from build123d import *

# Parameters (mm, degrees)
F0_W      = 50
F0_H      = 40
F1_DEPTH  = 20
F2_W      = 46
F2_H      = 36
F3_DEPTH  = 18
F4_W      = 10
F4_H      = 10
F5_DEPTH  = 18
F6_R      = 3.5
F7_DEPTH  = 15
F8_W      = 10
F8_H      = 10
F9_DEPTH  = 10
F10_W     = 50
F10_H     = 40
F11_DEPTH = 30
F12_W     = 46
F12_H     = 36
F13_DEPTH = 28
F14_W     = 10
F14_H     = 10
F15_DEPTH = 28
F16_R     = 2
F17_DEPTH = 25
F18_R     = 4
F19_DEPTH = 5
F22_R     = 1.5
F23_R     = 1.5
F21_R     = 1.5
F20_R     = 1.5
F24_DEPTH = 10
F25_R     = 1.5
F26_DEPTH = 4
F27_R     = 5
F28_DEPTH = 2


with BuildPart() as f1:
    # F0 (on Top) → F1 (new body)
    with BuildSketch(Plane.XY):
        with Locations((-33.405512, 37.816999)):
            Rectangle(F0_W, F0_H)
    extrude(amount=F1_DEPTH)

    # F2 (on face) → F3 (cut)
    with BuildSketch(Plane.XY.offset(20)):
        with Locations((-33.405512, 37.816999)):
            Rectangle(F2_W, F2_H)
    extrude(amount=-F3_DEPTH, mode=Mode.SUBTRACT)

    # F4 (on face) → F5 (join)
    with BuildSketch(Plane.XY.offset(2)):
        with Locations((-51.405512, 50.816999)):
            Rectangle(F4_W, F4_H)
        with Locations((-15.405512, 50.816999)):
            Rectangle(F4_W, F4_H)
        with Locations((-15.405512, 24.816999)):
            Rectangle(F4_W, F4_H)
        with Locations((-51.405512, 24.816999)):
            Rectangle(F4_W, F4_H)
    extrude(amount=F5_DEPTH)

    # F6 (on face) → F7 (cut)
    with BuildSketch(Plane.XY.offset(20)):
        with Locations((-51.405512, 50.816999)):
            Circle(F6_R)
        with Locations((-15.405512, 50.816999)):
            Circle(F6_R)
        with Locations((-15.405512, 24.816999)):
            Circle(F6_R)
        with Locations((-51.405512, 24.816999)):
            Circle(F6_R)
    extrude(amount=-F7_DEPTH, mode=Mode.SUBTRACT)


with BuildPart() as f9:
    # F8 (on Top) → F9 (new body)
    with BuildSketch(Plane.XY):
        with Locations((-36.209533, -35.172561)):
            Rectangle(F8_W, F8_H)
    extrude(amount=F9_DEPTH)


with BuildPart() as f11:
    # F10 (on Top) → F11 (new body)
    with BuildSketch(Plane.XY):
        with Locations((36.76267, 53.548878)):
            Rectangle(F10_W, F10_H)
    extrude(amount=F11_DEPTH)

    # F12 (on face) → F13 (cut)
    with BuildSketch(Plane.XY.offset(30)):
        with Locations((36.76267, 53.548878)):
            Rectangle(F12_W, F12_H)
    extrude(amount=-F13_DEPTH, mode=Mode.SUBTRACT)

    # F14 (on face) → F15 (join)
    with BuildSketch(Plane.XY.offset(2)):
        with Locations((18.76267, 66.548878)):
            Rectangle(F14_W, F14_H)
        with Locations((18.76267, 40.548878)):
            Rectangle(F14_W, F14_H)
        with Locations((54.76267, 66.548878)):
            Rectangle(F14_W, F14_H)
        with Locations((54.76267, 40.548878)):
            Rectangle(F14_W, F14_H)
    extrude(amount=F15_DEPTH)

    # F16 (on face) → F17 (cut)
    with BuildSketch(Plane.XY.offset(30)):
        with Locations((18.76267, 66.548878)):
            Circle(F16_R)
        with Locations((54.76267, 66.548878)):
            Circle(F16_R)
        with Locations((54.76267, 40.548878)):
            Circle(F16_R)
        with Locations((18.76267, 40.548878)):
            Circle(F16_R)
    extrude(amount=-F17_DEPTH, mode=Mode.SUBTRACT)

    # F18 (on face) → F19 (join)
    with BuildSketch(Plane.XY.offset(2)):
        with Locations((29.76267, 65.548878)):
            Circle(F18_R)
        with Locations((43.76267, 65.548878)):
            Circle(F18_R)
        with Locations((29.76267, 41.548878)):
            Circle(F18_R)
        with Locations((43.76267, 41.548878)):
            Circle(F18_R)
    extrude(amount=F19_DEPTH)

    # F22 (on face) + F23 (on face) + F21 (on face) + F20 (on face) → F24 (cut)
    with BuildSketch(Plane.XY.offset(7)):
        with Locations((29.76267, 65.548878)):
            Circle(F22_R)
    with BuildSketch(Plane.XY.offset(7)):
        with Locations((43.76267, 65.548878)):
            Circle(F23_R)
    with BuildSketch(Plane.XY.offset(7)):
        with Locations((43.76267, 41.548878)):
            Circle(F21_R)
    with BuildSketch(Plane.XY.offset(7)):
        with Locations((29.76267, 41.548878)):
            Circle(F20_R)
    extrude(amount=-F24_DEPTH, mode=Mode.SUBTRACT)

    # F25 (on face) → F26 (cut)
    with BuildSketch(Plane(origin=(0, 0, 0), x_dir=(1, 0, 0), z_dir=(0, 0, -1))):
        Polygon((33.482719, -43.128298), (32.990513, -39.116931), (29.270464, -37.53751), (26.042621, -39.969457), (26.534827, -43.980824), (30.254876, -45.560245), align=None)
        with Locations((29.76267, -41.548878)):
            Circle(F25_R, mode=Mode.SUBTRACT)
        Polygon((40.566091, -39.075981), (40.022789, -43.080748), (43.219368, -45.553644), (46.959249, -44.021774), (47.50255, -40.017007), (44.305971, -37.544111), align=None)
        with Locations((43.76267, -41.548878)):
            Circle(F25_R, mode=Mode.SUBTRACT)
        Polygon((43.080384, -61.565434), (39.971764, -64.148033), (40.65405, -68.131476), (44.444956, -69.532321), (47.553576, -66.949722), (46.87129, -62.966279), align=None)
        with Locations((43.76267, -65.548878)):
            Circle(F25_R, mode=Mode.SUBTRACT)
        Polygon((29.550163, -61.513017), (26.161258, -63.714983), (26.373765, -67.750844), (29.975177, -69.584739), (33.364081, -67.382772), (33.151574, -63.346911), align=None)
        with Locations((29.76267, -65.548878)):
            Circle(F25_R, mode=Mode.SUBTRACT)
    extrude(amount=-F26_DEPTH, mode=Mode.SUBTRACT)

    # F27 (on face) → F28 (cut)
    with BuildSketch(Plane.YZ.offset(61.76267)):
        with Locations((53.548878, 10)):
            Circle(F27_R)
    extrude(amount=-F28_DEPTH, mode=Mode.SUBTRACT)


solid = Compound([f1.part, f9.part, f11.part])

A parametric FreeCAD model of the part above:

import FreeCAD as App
import Part
import Sketcher
from FreeCAD import Vector
Q = App.Units.Quantity

doc = App.newDocument("Part")
body = doc.addObject("PartDesign::Body", "Body")

sketch1 = body.newObject("Sketcher::SketchObject", "Sketch")
sketch1.AttachmentSupport = (doc.getObject("XY_Plane"), [""])
sketch1.MapMode = "FlatFace"
sketch1.addGeometry([
    Part.LineSegment(Vector(-58, 58, 0), Vector(-58, 18, 0)),
    Part.LineSegment(Vector(-58, 18, 0), Vector(-8, 18, 0)),
    Part.LineSegment(Vector(-8, 18, 0), Vector(-8, 58, 0)),
    Part.LineSegment(Vector(-8, 58, 0), Vector(-58, 58, 0)),
], False)
sketch1.addConstraint([
    Sketcher.Constraint("Coincident", 0, 2, 1, 1),
    Sketcher.Constraint("Coincident", 1, 2, 2, 1),
    Sketcher.Constraint("Coincident", 2, 2, 3, 1),
    Sketcher.Constraint("Coincident", 3, 2, 0, 1),
    Sketcher.Constraint("Vertical", 0),
    Sketcher.Constraint("Horizontal", 1),
    Sketcher.Constraint("Vertical", 2),
    Sketcher.Constraint("Horizontal", 3),
    Sketcher.Constraint("DistanceX", 1, 1, 1, 2, Q("50 mm")),
    Sketcher.Constraint("DistanceY", 0, 2, 0, 1, Q("40 mm")),
    Sketcher.Constraint("DistanceY", -1, 1, 0, 2, Q("17.816999 mm")),
    Sketcher.Constraint("DistanceX", 0, 2, -1, 1, Q("58.405512 mm")),
])
pad1 = body.newObject("PartDesign::Pad", "Pad")
pad1.Profile = sketch1
pad1.Length = 20

sketch2 = body.newObject("Sketcher::SketchObject", "Sketch001")
sketch2.AttachmentSupport = (doc.getObject("XY_Plane"), [""])
sketch2.MapMode = "FlatFace"
sketch2.AttachmentOffset = App.Placement(Vector(0, 0, 20), App.Rotation())
sketch2.addGeometry([
    Part.LineSegment(Vector(-56, 56, 0), Vector(-56, 20, 0)),
    Part.LineSegment(Vector(-56, 20, 0), Vector(-10, 20, 0)),
    Part.LineSegment(Vector(-10, 20, 0), Vector(-10, 56, 0)),
    Part.LineSegment(Vector(-10, 56, 0), Vector(-56, 56, 0)),
], False)
sketch2.addConstraint([
    Sketcher.Constraint("Coincident", 0, 2, 1, 1),
    Sketcher.Constraint("Coincident", 1, 2, 2, 1),
    Sketcher.Constraint("Coincident", 2, 2, 3, 1),
    Sketcher.Constraint("Coincident", 3, 2, 0, 1),
    Sketcher.Constraint("Vertical", 0),
    Sketcher.Constraint("Horizontal", 1),
    Sketcher.Constraint("Vertical", 2),
    Sketcher.Constraint("Horizontal", 3),
    Sketcher.Constraint("DistanceX", 1, 1, 1, 2, Q("46 mm")),
    Sketcher.Constraint("DistanceY", 0, 2, 0, 1, Q("36 mm")),
    Sketcher.Constraint("DistanceY", -1, 1, 0, 2, Q("19.816999 mm")),
    Sketcher.Constraint("DistanceX", 0, 2, -1, 1, Q("56.405512 mm")),
])
pocket1 = body.newObject("PartDesign::Pocket", "Pocket")
pocket1.Profile = sketch2
pocket1.Length = 18

sketch3 = body.newObject("Sketcher::SketchObject", "Sketch002")
sketch3.AttachmentSupport = (doc.getObject("XY_Plane"), [""])
sketch3.MapMode = "FlatFace"
sketch3.AttachmentOffset = App.Placement(Vector(0, 0, 2), App.Rotation())
sketch3.addGeometry([
    Part.LineSegment(Vector(-56, 56, 0), Vector(-56, 46, 0)),
    Part.LineSegment(Vector(-56, 46, 0), Vector(-46, 46, 0)),
    Part.LineSegment(Vector(-46, 46, 0), Vector(-46, 56, 0)),
    Part.LineSegment(Vector(-46, 56, 0), Vector(-56, 56, 0)),
    Part.LineSegment(Vector(-20, 56, 0), Vector(-20, 46, 0)),
    Part.LineSegment(Vector(-20, 46, 0), Vector(-10, 46, 0)),
    Part.LineSegment(Vector(-10, 46, 0), Vector(-10, 56, 0)),
    Part.LineSegment(Vector(-10, 56, 0), Vector(-20, 56, 0)),
    Part.LineSegment(Vector(-20, 30, 0), Vector(-20, 20, 0)),
    Part.LineSegment(Vector(-20, 20, 0), Vector(-10, 20, 0)),
    Part.LineSegment(Vector(-10, 20, 0), Vector(-10, 30, 0)),
    Part.LineSegment(Vector(-10, 30, 0), Vector(-20, 30, 0)),
    Part.LineSegment(Vector(-56, 30, 0), Vector(-56, 20, 0)),
    Part.LineSegment(Vector(-56, 20, 0), Vector(-46, 20, 0)),
    Part.LineSegment(Vector(-46, 20, 0), Vector(-46, 30, 0)),
    Part.LineSegment(Vector(-46, 30, 0), Vector(-56, 30, 0)),
], False)
sketch3.addConstraint([
    Sketcher.Constraint("Coincident", 0, 2, 1, 1),
    Sketcher.Constraint("Coincident", 1, 2, 2, 1),
    Sketcher.Constraint("Coincident", 2, 2, 3, 1),
    Sketcher.Constraint("Coincident", 3, 2, 0, 1),
    Sketcher.Constraint("Coincident", 4, 2, 5, 1),
    Sketcher.Constraint("Coincident", 5, 2, 6, 1),
    Sketcher.Constraint("Coincident", 6, 2, 7, 1),
    Sketcher.Constraint("Coincident", 7, 2, 4, 1),
    Sketcher.Constraint("Coincident", 8, 2, 9, 1),
    Sketcher.Constraint("Coincident", 9, 2, 10, 1),
    Sketcher.Constraint("Coincident", 10, 2, 11, 1),
    Sketcher.Constraint("Coincident", 11, 2, 8, 1),
    Sketcher.Constraint("Coincident", 12, 2, 13, 1),
    Sketcher.Constraint("Coincident", 13, 2, 14, 1),
    Sketcher.Constraint("Coincident", 14, 2, 15, 1),
    Sketcher.Constraint("Coincident", 15, 2, 12, 1),
    Sketcher.Constraint("Vertical", 0),
    Sketcher.Constraint("Horizontal", 1),
    Sketcher.Constraint("Vertical", 2),
    Sketcher.Constraint("Horizontal", 3),
    Sketcher.Constraint("Vertical", 4),
    Sketcher.Constraint("Horizontal", 5),
    Sketcher.Constraint("Vertical", 6),
    Sketcher.Constraint("Horizontal", 7),
    Sketcher.Constraint("Vertical", 8),
    Sketcher.Constraint("Horizontal", 9),
    Sketcher.Constraint("Vertical", 10),
    Sketcher.Constraint("Horizontal", 11),
    Sketcher.Constraint("Vertical", 12),
    Sketcher.Constraint("Horizontal", 13),
    Sketcher.Constraint("Vertical", 14),
    Sketcher.Constraint("Horizontal", 15),
    Sketcher.Constraint("Horizontal", 1, 2, 4, 2),
    Sketcher.Constraint("Horizontal", 3, 2, 6, 2),
    Sketcher.Constraint("Horizontal", 9, 2, 12, 2),
    Sketcher.Constraint("Horizontal", 11, 2, 14, 2),
    Sketcher.Constraint("Vertical", 7, 2, 8, 2),
    Sketcher.Constraint("Vertical", 6, 2, 9, 2),
    Sketcher.Constraint("Vertical", 3, 2, 12, 2),
    Sketcher.Constraint("Vertical", 2, 2, 13, 2),
    Sketcher.Constraint("Equal", 3, 5),
    Sketcher.Constraint("Equal", 15, 0),
    Sketcher.Constraint("Equal", 6, 8),
    Sketcher.Constraint("DistanceX", 1, 1, 1, 2, Q("10 mm")),
    Sketcher.Constraint("DistanceX", 1, 2, 4, 2, Q("26 mm")),
    Sketcher.Constraint("DistanceY", 8, 2, 4, 2, Q("26 mm")),
    Sketcher.Constraint("DistanceY", -1, 1, 0, 2, Q("45.816999 mm")),
    Sketcher.Constraint("DistanceX", 0, 2, -1, 1, Q("56.405512 mm")),
])
pad2 = body.newObject("PartDesign::Pad", "Pad001")
pad2.Profile = sketch3
pad2.Length = 18

sketch4 = body.newObject("Sketcher::SketchObject", "Sketch003")
sketch4.AttachmentSupport = (doc.getObject("XY_Plane"), [""])
sketch4.MapMode = "FlatFace"
sketch4.AttachmentOffset = App.Placement(Vector(0, 0, 20), App.Rotation())
sketch4.addGeometry([
    Part.Circle(Vector(-51.4, 50.8, 0), Vector(0, 0, 1), 3.5),
    Part.Circle(Vector(-15.4, 50.8, 0), Vector(0, 0, 1), 3.5),
    Part.Circle(Vector(-15.4, 24.8, 0), Vector(0, 0, 1), 3.5),
    Part.Circle(Vector(-51.4, 24.8, 0), Vector(0, 0, 1), 3.5),
], False)
sketch4.addConstraint([
    Sketcher.Constraint("Equal", 0, 1),
    Sketcher.Constraint("Equal", 1, 2),
    Sketcher.Constraint("Equal", 2, 3),
    Sketcher.Constraint("Horizontal", 0, 3, 1, 3),
    Sketcher.Constraint("Horizontal", 2, 3, 3, 3),
    Sketcher.Constraint("Vertical", 1, 3, 2, 3),
    Sketcher.Constraint("Vertical", 0, 3, 3, 3),
    Sketcher.Constraint("Diameter", 0, Q("7 mm")),
    Sketcher.Constraint("DistanceX", 0, 3, 1, 3, Q("36 mm")),
    Sketcher.Constraint("DistanceY", 2, 3, 1, 3, Q("26 mm")),
    Sketcher.Constraint("DistanceY", -1, 1, 0, 3, Q("50.816999 mm")),
    Sketcher.Constraint("DistanceX", 0, 3, -1, 1, Q("51.405512 mm")),
])
pocket2 = body.newObject("PartDesign::Pocket", "Pocket001")
pocket2.Profile = sketch4
pocket2.Length = 15
body2 = doc.addObject("PartDesign::Body", "Body001")

sketch5 = body2.newObject("Sketcher::SketchObject", "Sketch004")
sketch5.AttachmentSupport = (doc.getObject("XY_Plane001"), [""])
sketch5.MapMode = "FlatFace"
sketch5.addGeometry([
    Part.LineSegment(Vector(-41, -30, 0), Vector(-41, -40, 0)),
    Part.LineSegment(Vector(-41, -40, 0), Vector(-31, -40, 0)),
    Part.LineSegment(Vector(-31, -40, 0), Vector(-31, -30, 0)),
    Part.LineSegment(Vector(-31, -30, 0), Vector(-41, -30, 0)),
], False)
sketch5.addConstraint([
    Sketcher.Constraint("Coincident", 0, 2, 1, 1),
    Sketcher.Constraint("Coincident", 1, 2, 2, 1),
    Sketcher.Constraint("Coincident", 2, 2, 3, 1),
    Sketcher.Constraint("Coincident", 3, 2, 0, 1),
    Sketcher.Constraint("Vertical", 0),
    Sketcher.Constraint("Horizontal", 1),
    Sketcher.Constraint("Vertical", 2),
    Sketcher.Constraint("Horizontal", 3),
    Sketcher.Constraint("Equal", 3, 0),
    Sketcher.Constraint("DistanceX", 1, 1, 1, 2, Q("10 mm")),
    Sketcher.Constraint("DistanceY", 0, 2, -1, 1, Q("40.172561 mm")),
    Sketcher.Constraint("DistanceX", 0, 2, -1, 1, Q("41.209533 mm")),
])
pad3 = body2.newObject("PartDesign::Pad", "Pad002")
pad3.Profile = sketch5
pad3.Length = 10
body3 = doc.addObject("PartDesign::Body", "Body002")

sketch6 = body3.newObject("Sketcher::SketchObject", "Sketch005")
sketch6.AttachmentSupport = (doc.getObject("XY_Plane002"), [""])
sketch6.MapMode = "FlatFace"
sketch6.addGeometry([
    Part.LineSegment(Vector(12, 74, 0), Vector(12, 34, 0)),
    Part.LineSegment(Vector(12, 34, 0), Vector(62, 34, 0)),
    Part.LineSegment(Vector(62, 34, 0), Vector(62, 74, 0)),
    Part.LineSegment(Vector(62, 74, 0), Vector(12, 74, 0)),
], False)
sketch6.addConstraint([
    Sketcher.Constraint("Coincident", 0, 2, 1, 1),
    Sketcher.Constraint("Coincident", 1, 2, 2, 1),
    Sketcher.Constraint("Coincident", 2, 2, 3, 1),
    Sketcher.Constraint("Coincident", 3, 2, 0, 1),
    Sketcher.Constraint("Vertical", 0),
    Sketcher.Constraint("Horizontal", 1),
    Sketcher.Constraint("Vertical", 2),
    Sketcher.Constraint("Horizontal", 3),
    Sketcher.Constraint("DistanceX", 1, 1, 1, 2, Q("50 mm")),
    Sketcher.Constraint("DistanceY", 0, 2, 0, 1, Q("40 mm")),
    Sketcher.Constraint("DistanceX", -1, 1, 0, 2, Q("11.76267 mm")),
    Sketcher.Constraint("DistanceY", -1, 1, 0, 2, Q("33.548878 mm")),
])
pad4 = body3.newObject("PartDesign::Pad", "Pad003")
pad4.Profile = sketch6
pad4.Length = 30

sketch7 = body3.newObject("Sketcher::SketchObject", "Sketch006")
sketch7.AttachmentSupport = (doc.getObject("XY_Plane002"), [""])
sketch7.MapMode = "FlatFace"
sketch7.AttachmentOffset = App.Placement(Vector(0, 0, 30), App.Rotation())
sketch7.addGeometry([
    Part.LineSegment(Vector(14, 72, 0), Vector(14, 36, 0)),
    Part.LineSegment(Vector(14, 36, 0), Vector(60, 36, 0)),
    Part.LineSegment(Vector(60, 36, 0), Vector(60, 72, 0)),
    Part.LineSegment(Vector(60, 72, 0), Vector(14, 72, 0)),
], False)
sketch7.addConstraint([
    Sketcher.Constraint("Coincident", 0, 2, 1, 1),
    Sketcher.Constraint("Coincident", 1, 2, 2, 1),
    Sketcher.Constraint("Coincident", 2, 2, 3, 1),
    Sketcher.Constraint("Coincident", 3, 2, 0, 1),
    Sketcher.Constraint("Vertical", 0),
    Sketcher.Constraint("Horizontal", 1),
    Sketcher.Constraint("Vertical", 2),
    Sketcher.Constraint("Horizontal", 3),
    Sketcher.Constraint("DistanceX", 1, 1, 1, 2, Q("46 mm")),
    Sketcher.Constraint("DistanceY", 0, 2, 0, 1, Q("36 mm")),
    Sketcher.Constraint("DistanceX", -1, 1, 0, 2, Q("13.76267 mm")),
    Sketcher.Constraint("DistanceY", -1, 1, 0, 2, Q("35.548878 mm")),
])
pocket3 = body3.newObject("PartDesign::Pocket", "Pocket002")
pocket3.Profile = sketch7
pocket3.Length = 28

sketch8 = body3.newObject("Sketcher::SketchObject", "Sketch007")
sketch8.AttachmentSupport = (doc.getObject("XY_Plane002"), [""])
sketch8.MapMode = "FlatFace"
sketch8.AttachmentOffset = App.Placement(Vector(0, 0, 2), App.Rotation())
sketch8.addGeometry([
    Part.LineSegment(Vector(14, 72, 0), Vector(14, 62, 0)),
    Part.LineSegment(Vector(14, 62, 0), Vector(24, 62, 0)),
    Part.LineSegment(Vector(24, 62, 0), Vector(24, 72, 0)),
    Part.LineSegment(Vector(24, 72, 0), Vector(14, 72, 0)),
    Part.LineSegment(Vector(14, 46, 0), Vector(14, 36, 0)),
    Part.LineSegment(Vector(14, 36, 0), Vector(24, 36, 0)),
    Part.LineSegment(Vector(24, 36, 0), Vector(24, 46, 0)),
    Part.LineSegment(Vector(24, 46, 0), Vector(14, 46, 0)),
    Part.LineSegment(Vector(50, 72, 0), Vector(50, 62, 0)),
    Part.LineSegment(Vector(50, 62, 0), Vector(60, 62, 0)),
    Part.LineSegment(Vector(60, 62, 0), Vector(60, 72, 0)),
    Part.LineSegment(Vector(60, 72, 0), Vector(50, 72, 0)),
    Part.LineSegment(Vector(50, 46, 0), Vector(50, 36, 0)),
    Part.LineSegment(Vector(50, 36, 0), Vector(60, 36, 0)),
    Part.LineSegment(Vector(60, 36, 0), Vector(60, 46, 0)),
    Part.LineSegment(Vector(60, 46, 0), Vector(50, 46, 0)),
], False)
sketch8.addConstraint([
    Sketcher.Constraint("Coincident", 0, 2, 1, 1),
    Sketcher.Constraint("Coincident", 1, 2, 2, 1),
    Sketcher.Constraint("Coincident", 2, 2, 3, 1),
    Sketcher.Constraint("Coincident", 3, 2, 0, 1),
    Sketcher.Constraint("Coincident", 4, 2, 5, 1),
    Sketcher.Constraint("Coincident", 5, 2, 6, 1),
    Sketcher.Constraint("Coincident", 6, 2, 7, 1),
    Sketcher.Constraint("Coincident", 7, 2, 4, 1),
    Sketcher.Constraint("Coincident", 8, 2, 9, 1),
    Sketcher.Constraint("Coincident", 9, 2, 10, 1),
    Sketcher.Constraint("Coincident", 10, 2, 11, 1),
    Sketcher.Constraint("Coincident", 11, 2, 8, 1),
    Sketcher.Constraint("Coincident", 12, 2, 13, 1),
    Sketcher.Constraint("Coincident", 13, 2, 14, 1),
    Sketcher.Constraint("Coincident", 14, 2, 15, 1),
    Sketcher.Constraint("Coincident", 15, 2, 12, 1),
    Sketcher.Constraint("Vertical", 0),
    Sketcher.Constraint("Horizontal", 1),
    Sketcher.Constraint("Vertical", 2),
    Sketcher.Constraint("Horizontal", 3),
    Sketcher.Constraint("Vertical", 4),
    Sketcher.Constraint("Horizontal", 5),
    Sketcher.Constraint("Vertical", 6),
    Sketcher.Constraint("Horizontal", 7),
    Sketcher.Constraint("Vertical", 8),
    Sketcher.Constraint("Horizontal", 9),
    Sketcher.Constraint("Vertical", 10),
    Sketcher.Constraint("Horizontal", 11),
    Sketcher.Constraint("Vertical", 12),
    Sketcher.Constraint("Horizontal", 13),
    Sketcher.Constraint("Vertical", 14),
    Sketcher.Constraint("Horizontal", 15),
    Sketcher.Constraint("Horizontal", 1, 2, 8, 2),
    Sketcher.Constraint("Horizontal", 3, 2, 10, 2),
    Sketcher.Constraint("Horizontal", 5, 2, 12, 2),
    Sketcher.Constraint("Horizontal", 7, 2, 14, 2),
    Sketcher.Constraint("Vertical", 3, 2, 4, 2),
    Sketcher.Constraint("Vertical", 2, 2, 5, 2),
    Sketcher.Constraint("Vertical", 11, 2, 12, 2),
    Sketcher.Constraint("Vertical", 10, 2, 13, 2),
    Sketcher.Constraint("Equal", 7, 9),
    Sketcher.Constraint("Equal", 15, 0),
    Sketcher.Constraint("Equal", 2, 4),
    Sketcher.Constraint("DistanceX", 1, 1, 1, 2, Q("10 mm")),
    Sketcher.Constraint("DistanceY", 4, 2, 0, 2, Q("26 mm")),
    Sketcher.Constraint("DistanceX", 1, 2, 8, 2, Q("26 mm")),
    Sketcher.Constraint("DistanceX", -1, 1, 0, 2, Q("13.76267 mm")),
    Sketcher.Constraint("DistanceY", -1, 1, 0, 2, Q("61.548878 mm")),
])
pad5 = body3.newObject("PartDesign::Pad", "Pad004")
pad5.Profile = sketch8
pad5.Length = 28

sketch9 = body3.newObject("Sketcher::SketchObject", "Sketch008")
sketch9.AttachmentSupport = (doc.getObject("XY_Plane002"), [""])
sketch9.MapMode = "FlatFace"
sketch9.AttachmentOffset = App.Placement(Vector(0, 0, 30), App.Rotation())
sketch9.addGeometry([
    Part.Circle(Vector(18.8, 66.5, 0), Vector(0, 0, 1), 2),
    Part.Circle(Vector(54.8, 66.5, 0), Vector(0, 0, 1), 2),
    Part.Circle(Vector(54.8, 40.5, 0), Vector(0, 0, 1), 2),
    Part.Circle(Vector(18.8, 40.5, 0), Vector(0, 0, 1), 2),
], False)
sketch9.addConstraint([
    Sketcher.Constraint("Equal", 0, 1),
    Sketcher.Constraint("Equal", 1, 2),
    Sketcher.Constraint("Equal", 2, 3),
    Sketcher.Constraint("Horizontal", 0, 3, 1, 3),
    Sketcher.Constraint("Horizontal", 2, 3, 3, 3),
    Sketcher.Constraint("Vertical", 1, 3, 2, 3),
    Sketcher.Constraint("Vertical", 0, 3, 3, 3),
    Sketcher.Constraint("Diameter", 0, Q("4 mm")),
    Sketcher.Constraint("DistanceX", 0, 3, 1, 3, Q("36 mm")),
    Sketcher.Constraint("DistanceY", 2, 3, 1, 3, Q("26 mm")),
    Sketcher.Constraint("DistanceX", -1, 1, 0, 3, Q("18.76267 mm")),
    Sketcher.Constraint("DistanceY", -1, 1, 0, 3, Q("66.548878 mm")),
])
pocket4 = body3.newObject("PartDesign::Pocket", "Pocket003")
pocket4.Profile = sketch9
pocket4.Length = 25

sketch10 = body3.newObject("Sketcher::SketchObject", "Sketch009")
sketch10.AttachmentSupport = (doc.getObject("XY_Plane002"), [""])
sketch10.MapMode = "FlatFace"
sketch10.AttachmentOffset = App.Placement(Vector(0, 0, 2), App.Rotation())
sketch10.addGeometry([
    Part.Circle(Vector(29.8, 65.5, 0), Vector(0, 0, 1), 4),
    Part.Circle(Vector(43.8, 65.5, 0), Vector(0, 0, 1), 4),
    Part.Circle(Vector(29.8, 41.5, 0), Vector(0, 0, 1), 4),
    Part.Circle(Vector(43.8, 41.5, 0), Vector(0, 0, 1), 4),
], False)
sketch10.addConstraint([
    Sketcher.Constraint("Equal", 0, 1),
    Sketcher.Constraint("Equal", 1, 2),
    Sketcher.Constraint("Equal", 2, 3),
    Sketcher.Constraint("Horizontal", 0, 3, 1, 3),
    Sketcher.Constraint("Horizontal", 2, 3, 3, 3),
    Sketcher.Constraint("Vertical", 0, 3, 2, 3),
    Sketcher.Constraint("Vertical", 1, 3, 3, 3),
    Sketcher.Constraint("Diameter", 0, Q("8 mm")),
    Sketcher.Constraint("DistanceX", 0, 3, 1, 3, Q("14 mm")),
    Sketcher.Constraint("DistanceY", 2, 3, 0, 3, Q("24 mm")),
    Sketcher.Constraint("DistanceX", -1, 1, 0, 3, Q("29.76267 mm")),
    Sketcher.Constraint("DistanceY", -1, 1, 0, 3, Q("65.548878 mm")),
])
pad6 = body3.newObject("PartDesign::Pad", "Pad005")
pad6.Profile = sketch10
pad6.Length = 5

sketch11 = body3.newObject("Sketcher::SketchObject", "Sketch010")
sketch11.AttachmentSupport = (doc.getObject("XY_Plane002"), [""])
sketch11.MapMode = "FlatFace"
sketch11.AttachmentOffset = App.Placement(Vector(0, 0, 7), App.Rotation())
sketch11.addGeometry([
    Part.Circle(Vector(29.8, 65.5, 0), Vector(0, 0, 1), 1.5),
    Part.Circle(Vector(43.8, 65.5, 0), Vector(0, 0, 1), 1.5),
    Part.Circle(Vector(43.8, 41.5, 0), Vector(0, 0, 1), 1.5),
    Part.Circle(Vector(29.8, 41.5, 0), Vector(0, 0, 1), 1.5),
], False)
sketch11.addConstraint([
    Sketcher.Constraint("Equal", 0, 1),
    Sketcher.Constraint("Equal", 1, 2),
    Sketcher.Constraint("Equal", 2, 3),
    Sketcher.Constraint("Horizontal", 0, 3, 1, 3),
    Sketcher.Constraint("Horizontal", 2, 3, 3, 3),
    Sketcher.Constraint("Vertical", 1, 3, 2, 3),
    Sketcher.Constraint("Vertical", 0, 3, 3, 3),
    Sketcher.Constraint("Diameter", 0, Q("3 mm")),
    Sketcher.Constraint("DistanceX", 0, 3, 1, 3, Q("14 mm")),
    Sketcher.Constraint("DistanceY", 2, 3, 1, 3, Q("24 mm")),
    Sketcher.Constraint("DistanceX", -1, 1, 0, 3, Q("29.76267 mm")),
    Sketcher.Constraint("DistanceY", -1, 1, 0, 3, Q("65.548878 mm")),
])
pocket5 = body3.newObject("PartDesign::Pocket", "Pocket004")
pocket5.Profile = sketch11
pocket5.Length = 10

sketch12 = body3.newObject("Sketcher::SketchObject", "Sketch011")
sketch12.AttachmentSupport = (doc.getObject("XY_Plane002"), [""])
sketch12.MapMode = "FlatFace"
sketch12.addGeometry([
    Part.LineSegment(Vector(33.5, 43.1, 0), Vector(33, 39.1, 0)),
    Part.LineSegment(Vector(33, 39.1, 0), Vector(29.3, 37.5, 0)),
    Part.LineSegment(Vector(29.3, 37.5, 0), Vector(26, 40, 0)),
    Part.LineSegment(Vector(26, 40, 0), Vector(26.5, 44, 0)),
    Part.LineSegment(Vector(26.5, 44, 0), Vector(30.3, 45.6, 0)),
    Part.LineSegment(Vector(30.3, 45.6, 0), Vector(33.5, 43.1, 0)),
    Part.Circle(Vector(29.8, 41.5, 0), Vector(0, 0, 1), 1.5),
    Part.LineSegment(Vector(40.6, 39.1, 0), Vector(40, 43.1, 0)),
    Part.LineSegment(Vector(40, 43.1, 0), Vector(43.2, 45.6, 0)),
    Part.LineSegment(Vector(43.2, 45.6, 0), Vector(47, 44, 0)),
    Part.LineSegment(Vector(47, 44, 0), Vector(47.5, 40, 0)),
    Part.LineSegment(Vector(47.5, 40, 0), Vector(44.3, 37.5, 0)),
    Part.LineSegment(Vector(44.3, 37.5, 0), Vector(40.6, 39.1, 0)),
    Part.Circle(Vector(43.8, 41.5, 0), Vector(0, 0, 1), 1.5),
    Part.LineSegment(Vector(43.1, 61.6, 0), Vector(40, 64.1, 0)),
    Part.LineSegment(Vector(40, 64.1, 0), Vector(40.7, 68.1, 0)),
    Part.LineSegment(Vector(40.7, 68.1, 0), Vector(44.4, 69.5, 0)),
    Part.LineSegment(Vector(44.4, 69.5, 0), Vector(47.6, 66.9, 0)),
    Part.LineSegment(Vector(47.6, 66.9, 0), Vector(46.9, 63, 0)),
    Part.LineSegment(Vector(46.9, 63, 0), Vector(43.1, 61.6, 0)),
    Part.Circle(Vector(43.8, 65.5, 0), Vector(0, 0, 1), 1.5),
    Part.LineSegment(Vector(29.6, 61.5, 0), Vector(26.2, 63.7, 0)),
    Part.LineSegment(Vector(26.2, 63.7, 0), Vector(26.4, 67.8, 0)),
    Part.LineSegment(Vector(26.4, 67.8, 0), Vector(30, 69.6, 0)),
    Part.LineSegment(Vector(30, 69.6, 0), Vector(33.4, 67.4, 0)),
    Part.LineSegment(Vector(33.4, 67.4, 0), Vector(33.2, 63.3, 0)),
    Part.LineSegment(Vector(33.2, 63.3, 0), Vector(29.6, 61.5, 0)),
    Part.Circle(Vector(29.8, 65.5, 0), Vector(0, 0, 1), 1.5),
], False)
sketch12.addConstraint([
    Sketcher.Constraint("Coincident", 0, 2, 1, 1),
    Sketcher.Constraint("Coincident", 1, 2, 2, 1),
    Sketcher.Constraint("Coincident", 2, 2, 3, 1),
    Sketcher.Constraint("Coincident", 3, 2, 4, 1),
    Sketcher.Constraint("Coincident", 4, 2, 5, 1),
    Sketcher.Constraint("Coincident", 5, 2, 0, 1),
    Sketcher.Constraint("Coincident", 7, 2, 8, 1),
    Sketcher.Constraint("Coincident", 8, 2, 9, 1),
    Sketcher.Constraint("Coincident", 9, 2, 10, 1),
    Sketcher.Constraint("Coincident", 10, 2, 11, 1),
    Sketcher.Constraint("Coincident", 11, 2, 12, 1),
    Sketcher.Constraint("Coincident", 12, 2, 7, 1),
    Sketcher.Constraint("Coincident", 14, 2, 15, 1),
    Sketcher.Constraint("Coincident", 15, 2, 16, 1),
    Sketcher.Constraint("Coincident", 16, 2, 17, 1),
    Sketcher.Constraint("Coincident", 17, 2, 18, 1),
    Sketcher.Constraint("Coincident", 18, 2, 19, 1),
    Sketcher.Constraint("Coincident", 19, 2, 14, 1),
    Sketcher.Constraint("Coincident", 21, 2, 22, 1),
    Sketcher.Constraint("Coincident", 22, 2, 23, 1),
    Sketcher.Constraint("Coincident", 23, 2, 24, 1),
    Sketcher.Constraint("Coincident", 24, 2, 25, 1),
    Sketcher.Constraint("Coincident", 25, 2, 26, 1),
    Sketcher.Constraint("Coincident", 26, 2, 21, 1),
    Sketcher.Constraint("Equal", 6, 13),
    Sketcher.Constraint("Equal", 13, 20),
    Sketcher.Constraint("Equal", 20, 27),
    Sketcher.Constraint("Parallel", 0, 3),
    Sketcher.Constraint("Parallel", 1, 4),
    Sketcher.Constraint("Parallel", 2, 5),
    Sketcher.Constraint("Parallel", 7, 10),
    Sketcher.Constraint("Parallel", 8, 11),
    Sketcher.Constraint("Parallel", 9, 12),
    Sketcher.Constraint("Parallel", 14, 17),
    Sketcher.Constraint("Parallel", 15, 18),
    Sketcher.Constraint("Parallel", 16, 19),
    Sketcher.Constraint("Parallel", 21, 24),
    Sketcher.Constraint("Parallel", 22, 25),
    Sketcher.Constraint("Parallel", 23, 26),
    Sketcher.Constraint("Horizontal", 6, 3, 13, 3),
    Sketcher.Constraint("Horizontal", 20, 3, 27, 3),
    Sketcher.Constraint("Vertical", 13, 3, 20, 3),
    Sketcher.Constraint("Vertical", 6, 3, 27, 3),
    Sketcher.Constraint("Equal", 0, 1),
    Sketcher.Constraint("Equal", 1, 2),
    Sketcher.Constraint("Equal", 2, 3),
    Sketcher.Constraint("Equal", 5, 7),
    Sketcher.Constraint("Equal", 7, 8),
    Sketcher.Constraint("Equal", 8, 9),
    Sketcher.Constraint("Equal", 9, 10),
    Sketcher.Constraint("Equal", 12, 14),
    Sketcher.Constraint("Equal", 14, 15),
    Sketcher.Constraint("Equal", 15, 16),
    Sketcher.Constraint("Equal", 16, 17),
    Sketcher.Constraint("Equal", 19, 21),
    Sketcher.Constraint("Equal", 21, 22),
    Sketcher.Constraint("Equal", 22, 23),
    Sketcher.Constraint("Equal", 23, 24),
    Sketcher.Constraint("Diameter", 6, Q("3 mm")),
    Sketcher.Constraint("DistanceX", 6, 3, 13, 3, Q("14 mm")),
    Sketcher.Constraint("DistanceY", 13, 3, 20, 3, Q("24 mm")),
    Sketcher.Constraint("DistanceX", 22, 2, 14, 2, Q("13.597999 mm")),
    Sketcher.Constraint("DistanceX", 8, 2, 13, 3, Q("0.543302 mm")),
    Sketcher.Constraint("DistanceY", 8, 2, 4, 2, Q("0.006601 mm")),
    Sketcher.Constraint("DistanceX", 9, 2, 10, 2, Q("0.543301 mm")),
    Sketcher.Constraint("DistanceX", 13, 3, 11, 2, Q("0.543301 mm")),
    Sketcher.Constraint("DistanceY", 20, 3, 15, 2, Q("2.582598 mm")),
    Sketcher.Constraint("DistanceY", 17, 2, 16, 2, Q("2.582599 mm")),
    Sketcher.Constraint("DistanceY", 18, 2, 20, 3, Q("2.582599 mm")),
    Sketcher.Constraint("DistanceX", 22, 2, 26, 2, Q("3.176398 mm")),
    Sketcher.Constraint("Distance", 0, Q("4.041452 mm")),
    Sketcher.Constraint("DistanceX", -1, 1, 6, 3, Q("29.76267 mm")),
    Sketcher.Constraint("DistanceY", -1, 1, 6, 3, Q("41.548878 mm")),
    Sketcher.Constraint("DistanceY", -1, 1, 0, 2, Q("39.116931 mm")),
    Sketcher.Constraint("DistanceY", -1, 1, 1, 2, Q("37.53751 mm")),
    Sketcher.Constraint("DistanceX", -1, 1, 2, 2, Q("26.042621 mm")),
    Sketcher.Constraint("DistanceX", -1, 1, 5, 2, Q("33.482719 mm")),
    Sketcher.Constraint("DistanceX", -1, 1, 7, 2, Q("40.022789 mm")),
    Sketcher.Constraint("DistanceY", -1, 1, 11, 2, Q("37.544111 mm")),
    Sketcher.Constraint("DistanceX", -1, 1, 15, 2, Q("40.65405 mm")),
    Sketcher.Constraint("DistanceY", -1, 1, 16, 2, Q("69.532321 mm")),
    Sketcher.Constraint("DistanceX", -1, 1, 21, 2, Q("26.161258 mm")),
    Sketcher.Constraint("DistanceY", -1, 1, 23, 2, Q("69.584739 mm")),
    Sketcher.Constraint("DistanceX", -1, 1, 24, 2, Q("33.364081 mm")),
])
pocket6 = body3.newObject("PartDesign::Pocket", "Pocket005")
pocket6.Profile = sketch12
pocket6.Length = 4
pocket6.Reversed = True

sketch13 = body3.newObject("Sketcher::SketchObject", "Sketch012")
sketch13.AttachmentSupport = (doc.getObject("YZ_Plane002"), [""])
sketch13.MapMode = "FlatFace"
sketch13.AttachmentOffset = App.Placement(Vector(0, 0, 61.76267), App.Rotation())
sketch13.addGeometry(Part.Circle(Vector(54, 10, 0), Vector(0, 0, 1), 5), False)
sketch13.addConstraint([
    Sketcher.Constraint("Diameter", 0, Q("10 mm")),
    Sketcher.Constraint("DistanceY", -1, 1, 0, 3, Q("10 mm")),
    Sketcher.Constraint("DistanceX", -1, 1, 0, 3, Q("53.548878 mm")),
])
pocket7 = body3.newObject("PartDesign::Pocket", "Pocket006")
pocket7.Profile = sketch13
pocket7.Length = 2

doc.recompute()
